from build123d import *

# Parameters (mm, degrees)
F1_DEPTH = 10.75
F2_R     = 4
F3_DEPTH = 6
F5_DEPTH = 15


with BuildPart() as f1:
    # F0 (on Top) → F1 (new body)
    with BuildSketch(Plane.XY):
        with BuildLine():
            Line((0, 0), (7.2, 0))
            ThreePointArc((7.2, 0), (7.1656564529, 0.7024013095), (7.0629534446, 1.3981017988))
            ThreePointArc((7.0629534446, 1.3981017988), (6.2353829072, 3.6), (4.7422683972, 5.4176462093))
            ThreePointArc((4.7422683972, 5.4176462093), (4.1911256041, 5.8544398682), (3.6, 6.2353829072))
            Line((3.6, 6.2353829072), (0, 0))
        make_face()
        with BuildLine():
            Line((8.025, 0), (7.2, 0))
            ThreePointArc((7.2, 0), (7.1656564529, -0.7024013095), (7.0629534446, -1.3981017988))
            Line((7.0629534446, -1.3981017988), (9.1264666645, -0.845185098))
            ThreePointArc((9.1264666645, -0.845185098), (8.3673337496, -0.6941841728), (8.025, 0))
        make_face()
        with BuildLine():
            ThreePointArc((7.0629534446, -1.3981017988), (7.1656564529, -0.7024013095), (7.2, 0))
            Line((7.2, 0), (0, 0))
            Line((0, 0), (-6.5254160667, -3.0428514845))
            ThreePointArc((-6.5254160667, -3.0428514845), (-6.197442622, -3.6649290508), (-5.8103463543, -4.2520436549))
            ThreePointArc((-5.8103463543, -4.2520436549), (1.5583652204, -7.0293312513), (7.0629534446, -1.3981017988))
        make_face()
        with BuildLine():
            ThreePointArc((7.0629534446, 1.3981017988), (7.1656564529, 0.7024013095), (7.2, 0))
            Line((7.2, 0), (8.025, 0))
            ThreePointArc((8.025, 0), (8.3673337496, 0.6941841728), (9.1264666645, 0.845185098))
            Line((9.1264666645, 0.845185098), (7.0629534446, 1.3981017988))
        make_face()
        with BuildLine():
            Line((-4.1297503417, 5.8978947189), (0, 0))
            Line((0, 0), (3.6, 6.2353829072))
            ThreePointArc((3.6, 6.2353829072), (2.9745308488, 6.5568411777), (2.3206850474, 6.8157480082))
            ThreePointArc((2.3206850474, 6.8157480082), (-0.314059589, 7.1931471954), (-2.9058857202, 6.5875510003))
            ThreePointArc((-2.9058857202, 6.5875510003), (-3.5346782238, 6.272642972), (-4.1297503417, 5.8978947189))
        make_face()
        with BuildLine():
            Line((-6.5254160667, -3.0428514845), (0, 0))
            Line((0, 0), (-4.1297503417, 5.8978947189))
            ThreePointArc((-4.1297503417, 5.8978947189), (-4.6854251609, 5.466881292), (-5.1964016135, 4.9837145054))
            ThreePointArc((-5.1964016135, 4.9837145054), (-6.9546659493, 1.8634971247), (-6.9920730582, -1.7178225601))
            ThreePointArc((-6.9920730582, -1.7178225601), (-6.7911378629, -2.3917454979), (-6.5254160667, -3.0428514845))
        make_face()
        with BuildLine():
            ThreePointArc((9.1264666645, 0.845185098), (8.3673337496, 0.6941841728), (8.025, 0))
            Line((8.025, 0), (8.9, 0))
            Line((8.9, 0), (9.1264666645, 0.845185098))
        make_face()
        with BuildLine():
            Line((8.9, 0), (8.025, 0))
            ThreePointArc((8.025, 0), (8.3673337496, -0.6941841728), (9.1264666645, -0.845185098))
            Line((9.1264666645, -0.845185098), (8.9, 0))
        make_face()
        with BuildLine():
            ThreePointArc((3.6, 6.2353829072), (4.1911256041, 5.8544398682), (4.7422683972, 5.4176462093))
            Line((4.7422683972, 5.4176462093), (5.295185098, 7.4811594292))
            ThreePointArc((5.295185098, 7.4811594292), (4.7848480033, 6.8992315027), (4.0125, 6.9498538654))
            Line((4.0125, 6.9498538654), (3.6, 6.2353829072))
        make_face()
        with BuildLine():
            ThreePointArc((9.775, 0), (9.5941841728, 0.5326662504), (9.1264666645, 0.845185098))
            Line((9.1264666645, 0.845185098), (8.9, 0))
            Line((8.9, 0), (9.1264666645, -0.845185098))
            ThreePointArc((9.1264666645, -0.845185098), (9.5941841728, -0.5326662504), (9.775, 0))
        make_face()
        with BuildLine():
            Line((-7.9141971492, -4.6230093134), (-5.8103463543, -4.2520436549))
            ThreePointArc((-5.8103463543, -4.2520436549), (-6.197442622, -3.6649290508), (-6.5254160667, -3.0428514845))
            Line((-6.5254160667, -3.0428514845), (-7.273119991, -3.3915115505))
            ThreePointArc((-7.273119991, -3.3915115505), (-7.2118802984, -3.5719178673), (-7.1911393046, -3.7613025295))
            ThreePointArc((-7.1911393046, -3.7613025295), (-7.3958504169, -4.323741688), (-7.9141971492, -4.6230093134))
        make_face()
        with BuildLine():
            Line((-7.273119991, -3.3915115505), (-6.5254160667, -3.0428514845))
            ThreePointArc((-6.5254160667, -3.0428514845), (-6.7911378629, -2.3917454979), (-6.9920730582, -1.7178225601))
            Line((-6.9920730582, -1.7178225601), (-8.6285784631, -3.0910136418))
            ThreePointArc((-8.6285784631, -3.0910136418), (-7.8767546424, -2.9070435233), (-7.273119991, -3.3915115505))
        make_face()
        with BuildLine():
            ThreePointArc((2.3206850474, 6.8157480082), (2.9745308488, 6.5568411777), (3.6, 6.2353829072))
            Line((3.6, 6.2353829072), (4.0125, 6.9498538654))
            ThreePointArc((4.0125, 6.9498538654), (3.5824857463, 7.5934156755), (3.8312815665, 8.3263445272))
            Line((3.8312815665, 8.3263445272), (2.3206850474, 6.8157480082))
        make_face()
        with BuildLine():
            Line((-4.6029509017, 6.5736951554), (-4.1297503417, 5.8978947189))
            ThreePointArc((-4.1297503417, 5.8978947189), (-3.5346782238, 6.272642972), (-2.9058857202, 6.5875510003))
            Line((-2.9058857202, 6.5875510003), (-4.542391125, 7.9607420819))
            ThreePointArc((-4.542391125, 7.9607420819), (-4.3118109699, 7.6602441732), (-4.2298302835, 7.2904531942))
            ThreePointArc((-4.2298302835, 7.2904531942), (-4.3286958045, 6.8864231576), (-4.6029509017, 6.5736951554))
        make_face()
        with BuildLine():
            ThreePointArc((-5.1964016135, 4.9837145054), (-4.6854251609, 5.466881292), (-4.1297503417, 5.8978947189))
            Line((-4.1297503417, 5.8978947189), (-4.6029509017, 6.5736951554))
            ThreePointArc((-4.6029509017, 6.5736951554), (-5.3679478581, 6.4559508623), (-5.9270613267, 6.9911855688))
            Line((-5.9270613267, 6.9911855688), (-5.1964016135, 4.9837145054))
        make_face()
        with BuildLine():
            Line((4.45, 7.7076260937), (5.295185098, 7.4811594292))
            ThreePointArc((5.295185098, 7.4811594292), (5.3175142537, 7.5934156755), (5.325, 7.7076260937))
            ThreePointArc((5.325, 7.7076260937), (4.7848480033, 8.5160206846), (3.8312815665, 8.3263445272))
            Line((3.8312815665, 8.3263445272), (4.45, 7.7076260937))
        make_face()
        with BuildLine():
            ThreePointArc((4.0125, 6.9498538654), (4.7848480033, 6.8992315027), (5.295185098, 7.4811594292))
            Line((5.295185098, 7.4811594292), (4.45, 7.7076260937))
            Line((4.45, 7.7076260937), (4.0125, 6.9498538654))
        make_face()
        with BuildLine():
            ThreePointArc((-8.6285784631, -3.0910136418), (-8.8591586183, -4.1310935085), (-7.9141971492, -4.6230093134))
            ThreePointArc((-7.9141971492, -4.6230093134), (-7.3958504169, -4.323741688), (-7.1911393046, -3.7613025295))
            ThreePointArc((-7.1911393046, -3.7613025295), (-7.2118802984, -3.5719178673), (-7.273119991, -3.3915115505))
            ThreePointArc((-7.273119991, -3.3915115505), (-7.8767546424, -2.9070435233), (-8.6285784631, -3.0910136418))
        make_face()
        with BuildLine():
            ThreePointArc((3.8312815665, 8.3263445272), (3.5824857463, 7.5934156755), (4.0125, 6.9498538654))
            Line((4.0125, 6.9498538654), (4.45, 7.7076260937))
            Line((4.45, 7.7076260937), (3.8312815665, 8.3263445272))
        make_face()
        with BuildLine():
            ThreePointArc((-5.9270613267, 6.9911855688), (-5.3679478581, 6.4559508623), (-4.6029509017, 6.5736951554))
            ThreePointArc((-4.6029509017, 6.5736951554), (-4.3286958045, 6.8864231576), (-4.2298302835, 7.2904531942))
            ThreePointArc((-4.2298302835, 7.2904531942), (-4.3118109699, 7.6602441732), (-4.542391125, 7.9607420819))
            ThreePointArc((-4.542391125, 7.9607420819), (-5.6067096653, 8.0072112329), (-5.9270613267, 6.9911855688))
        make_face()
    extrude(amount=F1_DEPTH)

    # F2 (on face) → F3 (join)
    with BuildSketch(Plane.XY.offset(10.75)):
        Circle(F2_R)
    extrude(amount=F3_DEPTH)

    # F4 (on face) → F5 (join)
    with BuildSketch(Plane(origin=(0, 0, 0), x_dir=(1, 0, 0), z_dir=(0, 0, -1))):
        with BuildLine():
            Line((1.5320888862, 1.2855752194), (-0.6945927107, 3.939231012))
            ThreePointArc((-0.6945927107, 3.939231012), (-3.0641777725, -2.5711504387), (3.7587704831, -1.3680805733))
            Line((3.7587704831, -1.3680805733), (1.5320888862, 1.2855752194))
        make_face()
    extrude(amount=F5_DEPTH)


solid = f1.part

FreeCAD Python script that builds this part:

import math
import FreeCAD as App
import Part
import Sketcher

V = App.Vector
Q = App.Units.Quantity

doc = App.newDocument("Part")
body = doc.addObject("PartDesign::Body", "Body")

sketch1 = body.newObject("Sketcher::SketchObject", "Sketch")
sketch1.AttachmentSupport = (doc.getObject("XY_Plane"), [""])
sketch1.MapMode = "FlatFace"
sketch1.addGeometry([
    Part.ArcOfCircle(Part.Circle(V(4.45, 7.707626, 0), V(0, 0, 1), 0.875), math.radians(0), math.radians(135)),
    Part.LineSegment(V(3.831282, 8.326345, 0), V(2.320685, 6.815748, 0)),
    Part.ArcOfCircle(Part.Circle(V(0, 0, 0), V(0, 0, 1), 7.2), math.radians(71.196873), math.radians(113.803127)),
    Part.LineSegment(V(-2.905886, 6.587551, 0), V(-4.542391, 7.960742, 0)),
    Part.ArcOfCircle(Part.Circle(V(-5.10483, 7.290453, 0), V(0, 0, 1), 0.875), math.radians(50), math.radians(200)),
    Part.LineSegment(V(-5.927061, 6.991186, 0), V(-5.196402, 4.983715, 0)),
    Part.ArcOfCircle(Part.Circle(V(0, 0, 0), V(0, 0, 1), 7.2), math.radians(136.196873), math.radians(193.803127)),
    Part.LineSegment(V(-6.992073, -1.717823, 0), V(-8.628578, -3.091014, 0)),
    Part.ArcOfCircle(Part.Circle(V(-8.066139, -3.761303, 0), V(0, 0, 1), 0.875), math.radians(130), math.radians(280)),
    Part.LineSegment(V(-7.914197, -4.623009, 0), V(-5.810346, -4.252044, 0)),
    Part.ArcOfCircle(Part.Circle(V(0, 0, 0), V(0, 0, 1), 7.2), math.radians(-143.803127), math.radians(-11.196873)),
    Part.LineSegment(V(7.062953, -1.398102, 0), V(9.126467, -0.845185, 0)),
    Part.ArcOfCircle(Part.Circle(V(8.9, 0, 0), V(0, 0, 1), 0.875), math.radians(-75), math.radians(0)),
    Part.ArcOfCircle(Part.Circle(V(8.9, 0, 0), V(0, 0, 1), 0.875), math.radians(0), math.radians(75)),
    Part.LineSegment(V(9.126467, 0.845185, 0), V(7.062953, 1.398102, 0)),
    Part.ArcOfCircle(Part.Circle(V(0, 0, 0), V(0, 0, 1), 7.2), math.radians(11.196873), math.radians(48.803128)),
    Part.LineSegment(V(4.742268, 5.417646, 0), V(5.295185, 7.481159, 0)),
    Part.ArcOfCircle(Part.Circle(V(4.45, 7.707626, 0), V(0, 0, 1), 0.875), math.radians(-15), math.radians(0)),
], False)
sketch1.addConstraint([
    Sketcher.Constraint("Tangent", 0, 2, 1, 1),
    Sketcher.Constraint("Coincident", 1, 2, 2, 1),
    Sketcher.Constraint("Coincident", 2, 2, 3, 1),
    Sketcher.Constraint("Tangent", 3, 2, 4, 1),
    Sketcher.Constraint("Tangent", 4, 2, 5, 1),
    Sketcher.Constraint("Coincident", 5, 2, 6, 1),
    Sketcher.Constraint("Coincident", 6, 2, 7, 1),
    Sketcher.Constraint("Tangent", 7, 2, 8, 1),
    Sketcher.Constraint("Tangent", 8, 2, 9, 1),
    Sketcher.Constraint("Coincident", 9, 2, 10, 1),
    Sketcher.Constraint("Coincident", 10, 2, 11, 1),
    Sketcher.Constraint("Tangent", 11, 2, 12, 1),
    Sketcher.Constraint("Tangent", 12, 2, 13, 1),
    Sketcher.Constraint("Tangent", 13, 2, 14, 1),
    Sketcher.Constraint("Coincident", 14, 2, 15, 1),
    Sketcher.Constraint("Coincident", 15, 2, 16, 1),
    Sketcher.Constraint("Tangent", 16, 2, 17, 1),
    Sketcher.Constraint("Tangent", 17, 2, 0, 1),
    Sketcher.Constraint("Coincident", 2, 3, -1, 1),
    Sketcher.Constraint("Coincident", 6, 3, -1, 1),
    Sketcher.Constraint("Coincident", 10, 3, -1, 1),
    Sketcher.Constraint("Coincident", 15, 3, -1, 1),
    Sketcher.Constraint("Equal", 0, 4),
    Sketcher.Constraint("Equal", 2, 6),
    Sketcher.Constraint("Equal", 4, 8),
    Sketcher.Constraint("Equal", 6, 10),
    Sketcher.Constraint("Equal", 8, 12),
    Sketcher.Constraint("Equal", 12, 13),
    Sketcher.Constraint("Equal", 10, 15),
    Sketcher.Constraint("Equal", 13, 17),
    Sketcher.Constraint("Symmetric", 11, 2, 13, 2, -1),
    Sketcher.Constraint("PointOnObject", 12, 2, -1),
    Sketcher.Constraint("Perpendicular", 14, 16),
    Sketcher.Constraint("Horizontal", 0, 3, 17, 2),
    Sketcher.Constraint("Equal", 1, 3),
    Sketcher.Constraint("Equal", 3, 5),
    Sketcher.Constraint("Equal", 5, 7),
    Sketcher.Constraint("Equal", 7, 9),
    Sketcher.Constraint("Equal", 9, 11),
    Sketcher.Constraint("Equal", 14, 16),
    Sketcher.Constraint("Radius", 2, Q("7.2 mm")),
    Sketcher.Constraint("Angle", 1, Q("-135 deg")),
    Sketcher.Constraint("Angle", 3, Q("140 deg")),
    Sketcher.Constraint("Angle", 5, Q("-70 deg")),
    Sketcher.Constraint("Angle", 7, Q("-140 deg")),
    Sketcher.Constraint("Angle", 9, Q("10 deg")),
    Sketcher.Constraint("Angle", 11, Q("15 deg")),
    Sketcher.Constraint("Radius", 0, Q("0.875 mm")),
    Sketcher.Constraint("DistanceX", -1, 1, 12, 3, Q("8.9 mm")),
])
pad1 = body.newObject("PartDesign::Pad", "Pad")
pad1.Profile = sketch1
pad1.Length = 10.75

sketch2 = body.newObject("Sketcher::SketchObject", "Sketch001")
sketch2.AttachmentSupport = (doc.getObject("XY_Plane"), [""])
sketch2.MapMode = "FlatFace"
sketch2.AttachmentOffset = App.Placement(V(0, 0, 10.75), App.Rotation())
sketch2.addGeometry(Part.Circle(V(0, 0, 0), V(0, 0, 1), 4), False)
sketch2.addConstraint([
    Sketcher.Constraint("Coincident", 0, 3, -1, 1),
    Sketcher.Constraint("Diameter", 0, Q("8 mm")),
])
pad2 = body.newObject("PartDesign::Pad", "Pad001")
pad2.Profile = sketch2
pad2.Length = 6

sketch3 = body.newObject("Sketcher::SketchObject", "Sketch002")
sketch3.AttachmentSupport = (doc.getObject("XY_Plane"), [""])
sketch3.MapMode = "FlatFace"
sketch3.addGeometry([
    Part.LineSegment(V(1.532089, -1.285575, 0), V(-0.694593, -3.939231, 0)),
    Part.ArcOfCircle(Part.Circle(V(0, 0, 0), V(0, 0, 1), 4), math.radians(20), math.radians(260)),
    Part.LineSegment(V(3.75877, 1.368081, 0), V(1.532089, -1.285575, 0)),
], False)
sketch3.addConstraint([
    Sketcher.Constraint("Coincident", 0, 2, 1, 2),
    Sketcher.Constraint("Coincident", 1, 1, 2, 1),
    Sketcher.Constraint("Coincident", 2, 2, 0, 1),
    Sketcher.Constraint("Coincident", 1, 3, -1, 1),
    Sketcher.Constraint("Parallel", 0, 2),
    Sketcher.Constraint("Equal", 0, 2),
    Sketcher.Constraint("Radius", 1, Q("4 mm")),
    Sketcher.Constraint("Angle", 0, Q("-130 deg")),
    Sketcher.Constraint("Distance", 0, Q("3.464102 mm")),
])
pad3 = body.newObject("PartDesign::Pad", "Pad002")
pad3.Profile = sketch3
pad3.Length = 15
pad3.Reversed = True

doc.recompute()
